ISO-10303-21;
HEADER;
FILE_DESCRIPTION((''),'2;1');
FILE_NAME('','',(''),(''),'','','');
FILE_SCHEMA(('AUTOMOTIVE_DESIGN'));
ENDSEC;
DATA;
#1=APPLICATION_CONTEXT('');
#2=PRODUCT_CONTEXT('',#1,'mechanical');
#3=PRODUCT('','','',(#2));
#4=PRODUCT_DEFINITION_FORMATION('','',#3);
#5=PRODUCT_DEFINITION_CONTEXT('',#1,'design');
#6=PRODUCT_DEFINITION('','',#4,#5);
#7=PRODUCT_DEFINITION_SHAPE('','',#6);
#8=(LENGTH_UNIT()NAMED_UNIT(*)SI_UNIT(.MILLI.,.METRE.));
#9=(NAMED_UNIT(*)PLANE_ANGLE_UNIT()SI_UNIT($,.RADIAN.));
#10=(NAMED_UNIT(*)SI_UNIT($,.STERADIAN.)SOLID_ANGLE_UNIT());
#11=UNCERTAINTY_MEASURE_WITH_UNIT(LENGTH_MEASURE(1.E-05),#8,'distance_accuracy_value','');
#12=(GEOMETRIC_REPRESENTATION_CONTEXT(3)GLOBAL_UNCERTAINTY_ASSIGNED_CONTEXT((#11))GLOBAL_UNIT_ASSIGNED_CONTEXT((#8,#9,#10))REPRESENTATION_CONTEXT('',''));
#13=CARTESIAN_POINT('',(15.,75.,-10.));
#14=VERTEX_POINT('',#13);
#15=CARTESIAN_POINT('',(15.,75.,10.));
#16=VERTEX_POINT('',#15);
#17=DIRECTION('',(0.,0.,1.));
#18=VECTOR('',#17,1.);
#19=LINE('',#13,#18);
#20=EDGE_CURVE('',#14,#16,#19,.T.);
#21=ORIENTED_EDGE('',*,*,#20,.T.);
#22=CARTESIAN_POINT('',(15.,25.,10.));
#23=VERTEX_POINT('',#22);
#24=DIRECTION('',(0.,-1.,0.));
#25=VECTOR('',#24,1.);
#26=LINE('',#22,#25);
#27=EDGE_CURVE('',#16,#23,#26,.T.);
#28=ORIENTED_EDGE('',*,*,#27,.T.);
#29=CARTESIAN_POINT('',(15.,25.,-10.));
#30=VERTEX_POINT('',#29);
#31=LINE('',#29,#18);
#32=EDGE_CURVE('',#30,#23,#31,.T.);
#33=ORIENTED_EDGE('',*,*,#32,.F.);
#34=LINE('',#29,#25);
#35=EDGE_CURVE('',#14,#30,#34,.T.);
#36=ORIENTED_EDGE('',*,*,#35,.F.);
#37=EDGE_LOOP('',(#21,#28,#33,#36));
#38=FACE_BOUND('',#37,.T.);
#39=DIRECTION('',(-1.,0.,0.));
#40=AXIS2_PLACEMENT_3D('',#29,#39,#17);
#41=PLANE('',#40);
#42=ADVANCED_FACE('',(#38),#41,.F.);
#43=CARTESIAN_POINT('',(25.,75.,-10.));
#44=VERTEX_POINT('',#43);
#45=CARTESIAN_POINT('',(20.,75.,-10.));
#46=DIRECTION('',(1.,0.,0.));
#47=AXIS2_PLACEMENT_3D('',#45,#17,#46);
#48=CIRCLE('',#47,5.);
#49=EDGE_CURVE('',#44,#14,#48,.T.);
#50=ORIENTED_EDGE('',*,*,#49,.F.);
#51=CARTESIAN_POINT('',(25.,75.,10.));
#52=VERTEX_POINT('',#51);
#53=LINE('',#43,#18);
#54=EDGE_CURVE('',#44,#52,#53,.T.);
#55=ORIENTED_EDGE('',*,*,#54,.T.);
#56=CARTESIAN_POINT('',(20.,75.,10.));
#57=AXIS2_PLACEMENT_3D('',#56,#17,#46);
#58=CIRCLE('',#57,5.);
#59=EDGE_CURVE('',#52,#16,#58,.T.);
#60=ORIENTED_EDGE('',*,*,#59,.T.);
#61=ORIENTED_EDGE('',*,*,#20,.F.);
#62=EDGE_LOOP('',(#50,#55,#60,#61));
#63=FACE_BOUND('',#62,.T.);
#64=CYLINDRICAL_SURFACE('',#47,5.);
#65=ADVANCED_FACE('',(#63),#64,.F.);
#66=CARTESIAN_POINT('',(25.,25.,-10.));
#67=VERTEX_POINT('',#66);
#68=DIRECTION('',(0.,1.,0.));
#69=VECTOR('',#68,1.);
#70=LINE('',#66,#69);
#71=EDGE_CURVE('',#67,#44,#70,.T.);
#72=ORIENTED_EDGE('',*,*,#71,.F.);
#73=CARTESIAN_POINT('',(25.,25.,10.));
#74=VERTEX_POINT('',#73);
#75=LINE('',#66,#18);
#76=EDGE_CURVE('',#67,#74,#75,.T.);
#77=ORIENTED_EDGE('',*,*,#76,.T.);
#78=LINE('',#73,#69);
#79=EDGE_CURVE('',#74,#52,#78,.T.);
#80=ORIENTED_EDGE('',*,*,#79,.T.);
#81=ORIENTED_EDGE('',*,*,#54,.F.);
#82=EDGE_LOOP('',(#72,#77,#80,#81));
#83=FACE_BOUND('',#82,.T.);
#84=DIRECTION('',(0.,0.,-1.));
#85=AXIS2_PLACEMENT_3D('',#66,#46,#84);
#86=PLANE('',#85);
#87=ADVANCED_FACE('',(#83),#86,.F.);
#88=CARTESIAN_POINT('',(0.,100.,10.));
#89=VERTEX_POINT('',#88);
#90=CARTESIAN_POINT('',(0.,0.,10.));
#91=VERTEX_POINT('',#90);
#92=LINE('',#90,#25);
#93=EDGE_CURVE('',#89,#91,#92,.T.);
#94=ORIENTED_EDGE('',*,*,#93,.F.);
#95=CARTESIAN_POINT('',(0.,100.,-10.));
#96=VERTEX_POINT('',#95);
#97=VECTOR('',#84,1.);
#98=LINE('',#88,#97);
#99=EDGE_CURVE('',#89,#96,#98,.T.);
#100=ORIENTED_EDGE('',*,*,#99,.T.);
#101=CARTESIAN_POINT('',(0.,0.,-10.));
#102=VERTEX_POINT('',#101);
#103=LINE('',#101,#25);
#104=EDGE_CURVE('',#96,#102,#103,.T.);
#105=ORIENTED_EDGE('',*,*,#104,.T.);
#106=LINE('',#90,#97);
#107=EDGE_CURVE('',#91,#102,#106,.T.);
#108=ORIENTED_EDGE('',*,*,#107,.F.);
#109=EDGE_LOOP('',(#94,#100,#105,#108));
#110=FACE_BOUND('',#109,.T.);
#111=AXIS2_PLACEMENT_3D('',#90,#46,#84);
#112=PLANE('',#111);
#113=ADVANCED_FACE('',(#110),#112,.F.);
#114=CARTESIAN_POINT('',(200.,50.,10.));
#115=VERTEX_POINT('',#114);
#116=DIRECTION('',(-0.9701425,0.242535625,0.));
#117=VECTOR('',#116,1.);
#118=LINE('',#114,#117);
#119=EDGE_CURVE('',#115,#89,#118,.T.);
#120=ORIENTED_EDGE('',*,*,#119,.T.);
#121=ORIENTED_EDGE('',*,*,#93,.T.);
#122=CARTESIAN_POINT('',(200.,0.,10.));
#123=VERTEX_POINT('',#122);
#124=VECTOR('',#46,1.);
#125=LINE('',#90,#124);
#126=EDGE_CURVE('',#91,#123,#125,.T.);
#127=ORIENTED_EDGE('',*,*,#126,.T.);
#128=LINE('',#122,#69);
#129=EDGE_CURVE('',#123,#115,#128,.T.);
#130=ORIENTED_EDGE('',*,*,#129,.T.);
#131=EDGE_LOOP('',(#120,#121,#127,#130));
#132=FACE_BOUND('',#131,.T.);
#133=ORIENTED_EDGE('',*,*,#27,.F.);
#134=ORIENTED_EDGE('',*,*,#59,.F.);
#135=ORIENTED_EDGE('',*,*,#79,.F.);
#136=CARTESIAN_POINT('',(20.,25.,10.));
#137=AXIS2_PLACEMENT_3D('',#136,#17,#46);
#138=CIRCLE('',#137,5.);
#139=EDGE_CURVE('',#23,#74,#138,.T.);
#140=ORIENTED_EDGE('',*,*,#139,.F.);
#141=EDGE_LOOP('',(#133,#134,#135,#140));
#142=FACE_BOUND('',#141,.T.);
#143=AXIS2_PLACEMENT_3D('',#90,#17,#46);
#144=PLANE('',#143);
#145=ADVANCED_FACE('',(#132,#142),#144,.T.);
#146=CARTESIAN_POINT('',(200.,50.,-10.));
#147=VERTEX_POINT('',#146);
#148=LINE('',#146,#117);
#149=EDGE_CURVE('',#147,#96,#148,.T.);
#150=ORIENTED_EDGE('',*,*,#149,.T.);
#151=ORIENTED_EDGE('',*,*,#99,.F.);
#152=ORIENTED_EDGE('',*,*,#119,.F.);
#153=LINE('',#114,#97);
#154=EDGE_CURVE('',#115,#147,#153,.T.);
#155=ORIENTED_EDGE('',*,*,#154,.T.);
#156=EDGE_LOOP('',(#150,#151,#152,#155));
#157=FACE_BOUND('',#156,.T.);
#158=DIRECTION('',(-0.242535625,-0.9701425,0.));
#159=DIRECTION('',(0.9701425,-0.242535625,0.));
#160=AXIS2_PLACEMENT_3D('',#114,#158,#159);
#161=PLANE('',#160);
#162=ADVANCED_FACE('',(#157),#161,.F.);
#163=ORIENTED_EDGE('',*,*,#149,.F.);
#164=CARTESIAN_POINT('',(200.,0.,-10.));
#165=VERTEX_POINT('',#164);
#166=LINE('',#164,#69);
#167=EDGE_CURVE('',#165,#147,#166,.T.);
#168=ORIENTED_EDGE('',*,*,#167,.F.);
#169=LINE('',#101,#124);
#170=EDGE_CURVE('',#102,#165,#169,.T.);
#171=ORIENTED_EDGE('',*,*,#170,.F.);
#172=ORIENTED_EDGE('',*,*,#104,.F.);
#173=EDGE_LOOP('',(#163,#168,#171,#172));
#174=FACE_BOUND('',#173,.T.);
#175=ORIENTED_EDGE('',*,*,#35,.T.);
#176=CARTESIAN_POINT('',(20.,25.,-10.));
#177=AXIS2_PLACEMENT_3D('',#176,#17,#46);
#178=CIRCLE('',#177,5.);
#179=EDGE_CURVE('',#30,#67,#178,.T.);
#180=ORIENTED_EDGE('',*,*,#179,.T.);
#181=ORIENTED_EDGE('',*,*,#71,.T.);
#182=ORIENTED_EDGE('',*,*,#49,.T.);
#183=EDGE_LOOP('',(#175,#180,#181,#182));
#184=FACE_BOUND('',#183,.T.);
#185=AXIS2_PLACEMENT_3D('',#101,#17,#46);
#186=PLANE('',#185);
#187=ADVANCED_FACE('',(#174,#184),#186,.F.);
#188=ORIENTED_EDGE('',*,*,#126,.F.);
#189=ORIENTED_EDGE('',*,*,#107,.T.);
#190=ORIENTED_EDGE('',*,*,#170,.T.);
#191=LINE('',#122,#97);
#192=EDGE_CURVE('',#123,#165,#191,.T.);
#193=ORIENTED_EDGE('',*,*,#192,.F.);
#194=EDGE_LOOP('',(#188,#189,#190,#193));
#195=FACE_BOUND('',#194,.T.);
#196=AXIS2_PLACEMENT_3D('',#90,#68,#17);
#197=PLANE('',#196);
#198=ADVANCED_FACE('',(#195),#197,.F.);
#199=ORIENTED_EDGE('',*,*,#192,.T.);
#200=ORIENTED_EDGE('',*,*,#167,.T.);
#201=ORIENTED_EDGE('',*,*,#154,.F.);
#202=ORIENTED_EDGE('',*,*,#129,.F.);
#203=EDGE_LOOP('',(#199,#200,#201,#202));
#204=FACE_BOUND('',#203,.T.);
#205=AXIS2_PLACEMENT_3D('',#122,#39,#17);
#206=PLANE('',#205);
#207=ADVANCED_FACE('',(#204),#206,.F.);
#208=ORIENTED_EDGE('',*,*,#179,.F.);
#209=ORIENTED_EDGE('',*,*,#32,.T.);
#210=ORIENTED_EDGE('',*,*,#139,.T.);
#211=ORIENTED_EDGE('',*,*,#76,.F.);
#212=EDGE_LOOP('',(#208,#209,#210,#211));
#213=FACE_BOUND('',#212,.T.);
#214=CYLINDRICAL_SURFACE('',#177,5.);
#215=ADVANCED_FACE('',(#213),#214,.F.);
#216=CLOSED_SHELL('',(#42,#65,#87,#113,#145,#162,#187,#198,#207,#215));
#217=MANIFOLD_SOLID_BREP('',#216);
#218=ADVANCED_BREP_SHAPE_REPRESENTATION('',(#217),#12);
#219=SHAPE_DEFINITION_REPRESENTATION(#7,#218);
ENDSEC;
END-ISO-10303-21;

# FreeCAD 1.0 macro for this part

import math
import FreeCAD as App
import Part
import Sketcher
from FreeCAD import Vector


def add_polygon(sketch, points):
    """Adds a closed chain of lines whose ends are joined by coincident constraints."""
    first, n = sketch.GeometryCount, len(points)
    for a, b in zip(points, points[1:] + points[:1]):
        sketch.addGeometry(Part.LineSegment(App.Vector(*a, 0), App.Vector(*b, 0)), False)
    for i in range(n):
        sketch.addConstraint(Sketcher.Constraint("Coincident", first + i, 2, first + (i + 1) % n, 1))

doc = App.newDocument("Part")
body = doc.addObject("PartDesign::Body", "Body")

sketch1 = body.newObject("Sketcher::SketchObject", "Sketch")
sketch1.AttachmentSupport = (doc.getObject("XY_Plane"), [""])
sketch1.MapMode = "FlatFace"
add_polygon(sketch1, [(0, 100), (0, 0), (200, 0), (200, 50)])
sketch1.addConstraint(Sketcher.Constraint("Vertical", 0))
sketch1.addConstraint(Sketcher.Constraint("Horizontal", 1))
sketch1.addConstraint(Sketcher.Constraint("Vertical", 2))
sketch1.addConstraint(Sketcher.Constraint("Coincident", 0, 2, -1, 1))
sketch1.addConstraint(Sketcher.Constraint("DistanceX", 1, 1, 1, 2, 200.0))
sketch1.addConstraint(Sketcher.Constraint("DistanceY", 0, 2, 0, 1, 100.0))
sketch1.addConstraint(Sketcher.Constraint("DistanceY", 2, 1, 2, 2, 50.0))
pad1 = body.newObject("PartDesign::Pad", "Pad")
pad1.Profile = sketch1
pad1.Length = 20
pad1.Midplane = True

sketch2 = body.newObject("Sketcher::SketchObject", "Sketch001")
sketch2.AttachmentSupport = (doc.getObject("XY_Plane"), [""])
sketch2.MapMode = "FlatFace"
sketch2.AttachmentOffset = App.Placement(Vector(0, 0, 10), App.Rotation())
sketch2.addGeometry(Part.LineSegment(Vector(15, 75, 0), Vector(15, 25, 0)), False)
sketch2.addGeometry(Part.ArcOfCircle(Part.Circle(Vector(20, 25, 0), Vector(0, 0, 1), 5), math.radians(180), math.radians(360)), False)
sketch2.addGeometry(Part.LineSegment(Vector(25, 25, 0), Vector(25, 75, 0)), False)
sketch2.addGeometry(Part.ArcOfCircle(Part.Circle(Vector(20, 75, 0), Vector(0, 0, 1), 5), math.radians(0), math.radians(180)), False)
sketch2.addConstraint(Sketcher.Constraint("Tangent", 0, 2, 1, 1))
sketch2.addConstraint(Sketcher.Constraint("Tangent", 1, 2, 2, 1))
sketch2.addConstraint(Sketcher.Constraint("Tangent", 2, 2, 3, 1))
sketch2.addConstraint(Sketcher.Constraint("Tangent", 3, 2, 0, 1))
sketch2.addConstraint(Sketcher.Constraint("Vertical", 0))
sketch2.addConstraint(Sketcher.Constraint("Vertical", 2))
sketch2.addConstraint(Sketcher.Constraint("Radius", 1, 5.0))
sketch2.addConstraint(Sketcher.Constraint("DistanceY", 0, 2, 0, 1, 50.0))
sketch2.addConstraint(Sketcher.Constraint("DistanceX", -1, 1, 1, 3, 20.0))
sketch2.addConstraint(Sketcher.Constraint("DistanceY", -1, 1, 1, 3, 25.0))
pocket1 = body.newObject("PartDesign::Pocket", "Pocket")
pocket1.Profile = sketch2
pocket1.Type = "ThroughAll"

doc.recompute()
